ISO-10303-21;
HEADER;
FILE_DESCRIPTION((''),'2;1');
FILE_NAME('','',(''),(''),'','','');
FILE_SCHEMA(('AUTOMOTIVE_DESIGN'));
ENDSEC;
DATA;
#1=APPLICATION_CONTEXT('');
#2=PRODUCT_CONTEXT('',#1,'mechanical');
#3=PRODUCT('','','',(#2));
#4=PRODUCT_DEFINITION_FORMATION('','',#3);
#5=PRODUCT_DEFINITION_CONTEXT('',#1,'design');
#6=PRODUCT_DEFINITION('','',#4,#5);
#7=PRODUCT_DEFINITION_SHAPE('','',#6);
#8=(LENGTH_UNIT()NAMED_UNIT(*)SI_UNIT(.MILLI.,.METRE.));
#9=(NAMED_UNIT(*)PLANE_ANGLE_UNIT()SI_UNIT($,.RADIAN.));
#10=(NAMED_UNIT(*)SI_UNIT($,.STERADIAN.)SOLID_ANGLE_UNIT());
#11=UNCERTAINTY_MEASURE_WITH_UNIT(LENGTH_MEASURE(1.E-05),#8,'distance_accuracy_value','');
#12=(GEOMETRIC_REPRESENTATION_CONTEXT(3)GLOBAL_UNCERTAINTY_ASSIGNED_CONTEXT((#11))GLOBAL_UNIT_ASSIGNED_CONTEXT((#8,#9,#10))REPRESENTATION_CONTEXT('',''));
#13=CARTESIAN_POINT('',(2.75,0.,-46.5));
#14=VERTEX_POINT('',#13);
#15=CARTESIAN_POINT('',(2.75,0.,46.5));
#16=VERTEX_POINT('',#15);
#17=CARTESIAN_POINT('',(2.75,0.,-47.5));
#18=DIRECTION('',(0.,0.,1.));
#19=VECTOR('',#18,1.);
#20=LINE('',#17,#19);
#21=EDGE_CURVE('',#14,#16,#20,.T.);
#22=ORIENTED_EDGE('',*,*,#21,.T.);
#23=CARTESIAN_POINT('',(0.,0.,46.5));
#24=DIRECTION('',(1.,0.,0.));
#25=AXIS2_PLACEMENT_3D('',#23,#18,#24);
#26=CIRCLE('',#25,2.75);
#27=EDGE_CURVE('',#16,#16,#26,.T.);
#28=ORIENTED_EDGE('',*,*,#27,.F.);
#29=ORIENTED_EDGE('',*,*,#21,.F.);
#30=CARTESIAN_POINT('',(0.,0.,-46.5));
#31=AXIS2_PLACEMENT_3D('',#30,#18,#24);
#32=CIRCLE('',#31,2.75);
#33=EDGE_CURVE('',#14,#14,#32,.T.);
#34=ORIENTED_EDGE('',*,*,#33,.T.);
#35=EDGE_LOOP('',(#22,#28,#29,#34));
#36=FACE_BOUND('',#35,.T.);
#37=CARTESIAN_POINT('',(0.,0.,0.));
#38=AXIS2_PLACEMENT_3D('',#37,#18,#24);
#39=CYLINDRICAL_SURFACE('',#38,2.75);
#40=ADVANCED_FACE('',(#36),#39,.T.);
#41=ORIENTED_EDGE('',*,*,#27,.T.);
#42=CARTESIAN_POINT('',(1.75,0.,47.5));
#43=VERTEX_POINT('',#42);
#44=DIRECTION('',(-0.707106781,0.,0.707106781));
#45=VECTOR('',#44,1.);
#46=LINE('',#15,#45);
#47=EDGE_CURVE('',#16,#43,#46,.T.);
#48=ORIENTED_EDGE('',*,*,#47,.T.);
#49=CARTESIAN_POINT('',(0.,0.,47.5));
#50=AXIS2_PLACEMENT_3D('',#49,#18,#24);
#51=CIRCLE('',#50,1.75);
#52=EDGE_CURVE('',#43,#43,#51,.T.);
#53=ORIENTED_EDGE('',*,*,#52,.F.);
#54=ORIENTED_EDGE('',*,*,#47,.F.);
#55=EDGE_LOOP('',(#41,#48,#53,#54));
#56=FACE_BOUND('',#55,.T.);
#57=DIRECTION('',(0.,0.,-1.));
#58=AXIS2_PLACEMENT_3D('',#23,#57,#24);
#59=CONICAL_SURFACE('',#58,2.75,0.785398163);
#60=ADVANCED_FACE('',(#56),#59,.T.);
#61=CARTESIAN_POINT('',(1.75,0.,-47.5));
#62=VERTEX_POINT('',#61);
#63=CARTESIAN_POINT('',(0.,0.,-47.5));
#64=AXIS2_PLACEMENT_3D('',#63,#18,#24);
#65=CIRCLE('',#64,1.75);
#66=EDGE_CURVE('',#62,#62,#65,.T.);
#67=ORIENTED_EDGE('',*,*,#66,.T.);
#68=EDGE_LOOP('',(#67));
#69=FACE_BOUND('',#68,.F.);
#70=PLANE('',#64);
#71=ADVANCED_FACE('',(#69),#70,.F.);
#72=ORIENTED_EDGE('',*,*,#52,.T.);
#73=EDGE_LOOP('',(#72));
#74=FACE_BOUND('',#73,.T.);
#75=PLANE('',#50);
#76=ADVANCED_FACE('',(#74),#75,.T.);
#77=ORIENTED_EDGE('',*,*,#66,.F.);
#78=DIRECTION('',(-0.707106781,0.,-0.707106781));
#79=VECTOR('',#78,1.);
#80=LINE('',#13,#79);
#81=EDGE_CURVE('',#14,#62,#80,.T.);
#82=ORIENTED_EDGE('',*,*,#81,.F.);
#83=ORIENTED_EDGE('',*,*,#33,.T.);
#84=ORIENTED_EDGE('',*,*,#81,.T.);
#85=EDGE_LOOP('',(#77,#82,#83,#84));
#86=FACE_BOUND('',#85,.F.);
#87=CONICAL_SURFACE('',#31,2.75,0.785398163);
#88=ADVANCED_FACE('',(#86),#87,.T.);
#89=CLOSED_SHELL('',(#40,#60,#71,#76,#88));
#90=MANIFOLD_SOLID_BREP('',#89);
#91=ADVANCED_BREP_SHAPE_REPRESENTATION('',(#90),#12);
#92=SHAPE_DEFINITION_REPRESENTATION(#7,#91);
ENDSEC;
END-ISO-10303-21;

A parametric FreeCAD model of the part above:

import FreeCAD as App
import Part
import Sketcher
from FreeCAD import Vector
Q = App.Units.Quantity


def edges_at(feature, points):
    """Names of the edges that pass closest to the given points."""
    edges = feature.Shape.Edges
    near = lambda p: min(range(len(edges)), key=lambda i: edges[i].distToShape(Part.Vertex(*p))[0])
    return sorted({f"Edge{near(p) + 1}" for p in points})

doc = App.newDocument("Part")
body = doc.addObject("PartDesign::Body", "Body")

# Sketch on XY plane
sketch1 = body.newObject("Sketcher::SketchObject", "Sketch")
sketch1.AttachmentSupport = (doc.getObject("XY_Plane"), [""])
sketch1.MapMode = "FlatFace"
sketch1.addGeometry(Part.Circle(Vector(0, 0, 0), Vector(0, 0, 1), 2.75), False)
sketch1.addConstraint(Sketcher.Constraint("Coincident", 0, 3, -1, 1))
sketch1.addConstraint(Sketcher.Constraint("Diameter", 0, Q("5.5 mm")))
pad1 = body.newObject("PartDesign::Pad", "Pad")
pad1.Profile = sketch1
pad1.Length = 95
pad1.Midplane = True
doc.recompute()

chamfer = body.newObject("PartDesign::Chamfer", "Chamfer")
chamfer.Base = (pad1, edges_at(pad1, [(-2.75, 0, 47.5), (-2.75, 0, -47.5)]))
chamfer.Size = 1

doc.recompute()
